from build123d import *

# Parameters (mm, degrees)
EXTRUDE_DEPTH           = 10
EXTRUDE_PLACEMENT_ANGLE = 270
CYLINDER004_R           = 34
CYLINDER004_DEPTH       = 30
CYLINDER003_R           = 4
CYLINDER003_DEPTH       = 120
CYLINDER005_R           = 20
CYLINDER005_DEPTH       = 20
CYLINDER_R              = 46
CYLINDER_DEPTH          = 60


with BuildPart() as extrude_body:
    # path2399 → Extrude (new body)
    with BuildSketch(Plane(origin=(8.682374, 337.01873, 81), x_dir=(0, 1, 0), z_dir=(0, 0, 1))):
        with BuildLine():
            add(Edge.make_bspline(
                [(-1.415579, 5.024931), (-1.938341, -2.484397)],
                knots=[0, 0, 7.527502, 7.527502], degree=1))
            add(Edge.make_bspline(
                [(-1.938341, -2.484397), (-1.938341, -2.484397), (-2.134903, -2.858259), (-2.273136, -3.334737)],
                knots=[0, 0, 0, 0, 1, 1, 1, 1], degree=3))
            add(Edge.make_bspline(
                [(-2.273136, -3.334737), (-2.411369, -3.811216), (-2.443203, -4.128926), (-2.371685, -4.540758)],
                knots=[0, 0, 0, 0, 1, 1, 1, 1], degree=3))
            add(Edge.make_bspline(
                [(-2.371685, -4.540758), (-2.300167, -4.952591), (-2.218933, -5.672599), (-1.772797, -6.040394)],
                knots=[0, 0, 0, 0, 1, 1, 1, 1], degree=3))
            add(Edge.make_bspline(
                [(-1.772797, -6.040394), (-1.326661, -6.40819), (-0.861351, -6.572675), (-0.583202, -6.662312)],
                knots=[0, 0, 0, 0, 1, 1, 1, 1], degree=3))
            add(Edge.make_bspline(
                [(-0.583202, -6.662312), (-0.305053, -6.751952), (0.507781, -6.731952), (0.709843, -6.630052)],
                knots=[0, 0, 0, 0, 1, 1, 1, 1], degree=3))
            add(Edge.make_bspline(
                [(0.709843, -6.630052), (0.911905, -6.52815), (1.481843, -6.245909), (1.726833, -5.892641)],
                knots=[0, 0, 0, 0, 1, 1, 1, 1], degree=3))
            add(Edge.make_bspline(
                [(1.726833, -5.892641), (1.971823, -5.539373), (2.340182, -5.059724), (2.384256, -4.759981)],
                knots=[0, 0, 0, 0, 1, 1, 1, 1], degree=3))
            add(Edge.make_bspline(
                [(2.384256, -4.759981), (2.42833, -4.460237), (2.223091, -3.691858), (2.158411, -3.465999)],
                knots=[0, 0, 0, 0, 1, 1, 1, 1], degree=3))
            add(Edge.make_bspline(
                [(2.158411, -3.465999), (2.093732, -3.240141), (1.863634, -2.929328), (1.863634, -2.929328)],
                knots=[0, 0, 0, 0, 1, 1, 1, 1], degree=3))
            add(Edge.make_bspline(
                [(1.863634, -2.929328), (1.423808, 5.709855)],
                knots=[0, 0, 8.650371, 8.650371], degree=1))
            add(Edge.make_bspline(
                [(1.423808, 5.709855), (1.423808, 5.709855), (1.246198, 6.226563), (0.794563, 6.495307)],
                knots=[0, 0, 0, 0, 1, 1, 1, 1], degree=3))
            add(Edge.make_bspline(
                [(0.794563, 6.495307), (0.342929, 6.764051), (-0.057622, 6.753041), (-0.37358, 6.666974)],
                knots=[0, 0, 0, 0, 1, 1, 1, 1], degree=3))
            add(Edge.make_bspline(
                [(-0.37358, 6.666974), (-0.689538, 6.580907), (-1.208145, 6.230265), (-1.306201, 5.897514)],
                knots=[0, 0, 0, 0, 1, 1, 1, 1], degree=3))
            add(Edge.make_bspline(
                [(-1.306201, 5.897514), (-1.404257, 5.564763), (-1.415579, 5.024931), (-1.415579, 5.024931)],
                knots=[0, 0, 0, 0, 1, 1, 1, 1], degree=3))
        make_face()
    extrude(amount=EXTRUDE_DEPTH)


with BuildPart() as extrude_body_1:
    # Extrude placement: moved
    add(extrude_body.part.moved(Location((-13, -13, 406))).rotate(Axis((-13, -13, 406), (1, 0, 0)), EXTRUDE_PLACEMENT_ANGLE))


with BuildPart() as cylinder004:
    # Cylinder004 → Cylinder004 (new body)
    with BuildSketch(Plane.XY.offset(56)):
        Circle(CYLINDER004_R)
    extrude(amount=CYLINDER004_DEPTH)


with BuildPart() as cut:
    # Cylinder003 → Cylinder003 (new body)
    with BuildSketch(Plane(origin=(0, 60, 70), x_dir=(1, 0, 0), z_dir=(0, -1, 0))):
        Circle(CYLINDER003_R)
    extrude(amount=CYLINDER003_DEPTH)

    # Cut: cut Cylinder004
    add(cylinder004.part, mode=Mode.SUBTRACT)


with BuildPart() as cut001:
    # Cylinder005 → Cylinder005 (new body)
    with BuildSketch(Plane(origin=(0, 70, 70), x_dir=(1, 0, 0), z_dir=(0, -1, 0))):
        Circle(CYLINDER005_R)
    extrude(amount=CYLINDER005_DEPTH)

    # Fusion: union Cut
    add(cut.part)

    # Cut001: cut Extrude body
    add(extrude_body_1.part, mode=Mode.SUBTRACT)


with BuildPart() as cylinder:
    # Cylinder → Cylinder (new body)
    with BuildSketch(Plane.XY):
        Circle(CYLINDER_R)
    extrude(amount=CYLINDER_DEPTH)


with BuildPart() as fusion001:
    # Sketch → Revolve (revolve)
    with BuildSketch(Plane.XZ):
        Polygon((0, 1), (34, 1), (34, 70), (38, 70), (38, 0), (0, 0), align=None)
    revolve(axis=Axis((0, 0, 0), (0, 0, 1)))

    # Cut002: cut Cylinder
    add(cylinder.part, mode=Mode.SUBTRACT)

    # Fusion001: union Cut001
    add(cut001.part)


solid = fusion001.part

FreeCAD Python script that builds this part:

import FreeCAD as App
import Part
import Sketcher
from FreeCAD import Vector


def add_polygon(sketch, points):
    """Adds a closed chain of lines whose ends are joined by coincident constraints."""
    first, n = sketch.GeometryCount, len(points)
    for a, b in zip(points, points[1:] + points[:1]):
        sketch.addGeometry(Part.LineSegment(App.Vector(*a, 0), App.Vector(*b, 0)), False)
    for i in range(n):
        sketch.addConstraint(Sketcher.Constraint("Coincident", first + i, 2, first + (i + 1) % n, 1))

doc = App.newDocument("Part")
params = doc.addObject("Spreadsheet::Sheet", "Params")
for row, (alias, value) in enumerate([
    ("pad1_length", "10 mm"),
    ("sketch2_diameter", "68 mm"),
    ("pad2_length", "30 mm"),
    ("sketch3_diameter", "8 mm"),
    ("pad3_length", "120 mm"),
    ("sketch4_diameter", "40 mm"),
    ("pad4_length", "20 mm"),
    ("sketch5_diameter", "92 mm"),
    ("pad5_length", "60 mm"),
    ("sketch6_width", "34 mm"),
    ("sketch6_width2", "38 mm"),
    ("sketch6_height", "1 mm"),
    ("sketch6_height2", "70 mm"),
    ("revolution_angle", "360 deg"),
], start=1):
    params.set(f"A{row}", alias)
    params.set(f"B{row}", "=" + value)
    params.setAlias(f"B{row}", alias)

body = doc.addObject("PartDesign::Body", "Body")

# Sketch on XY plane
sketch1 = doc.addObject("Sketcher::SketchObject", "Sketch")
body.addObject(sketch1)
sketch1.AttachmentSupport = (doc.XY_Plane, [""])
sketch1.MapMode = "FlatFace"
sketch1.AttachmentOffset = App.Placement(Vector(0, 0, 81), App.Rotation())
sketch1.addGeometry([
    Part.BSplineCurve([Vector(3.657443, 335.603151, 0), Vector(11.166771, 335.080389, 0)], [2, 2], [0, 7.527502], False, 1, [1, 1], False),  # 0
    Part.BSplineCurve([Vector(11.166771, 335.080389, 0), Vector(11.166771, 335.080389, 0), Vector(11.540633, 334.883827, 0), Vector(12.017111, 334.745594, 0)], [4, 4], [0, 1], False, 3, [1, 1, 1, 1], False),  # 1
    Part.BSplineCurve([Vector(12.017111, 334.745594, 0), Vector(12.49359, 334.607361, 0), Vector(12.8113, 334.575527, 0), Vector(13.223132, 334.647045, 0)], [4, 4], [0, 1], False, 3, [1, 1, 1, 1], False),  # 2
    Part.BSplineCurve([Vector(13.223132, 334.647045, 0), Vector(13.634965, 334.718563, 0), Vector(14.354973, 334.799797, 0), Vector(14.722768, 335.245933, 0)], [4, 4], [0, 1], False, 3, [1, 1, 1, 1], False),  # 3
    Part.BSplineCurve([Vector(14.722768, 335.245933, 0), Vector(15.090564, 335.692069, 0), Vector(15.255049, 336.157379, 0), Vector(15.344686, 336.435528, 0)], [4, 4], [0, 1], False, 3, [1, 1, 1, 1], False),  # 4
    Part.BSplineCurve([Vector(15.344686, 336.435528, 0), Vector(15.434326, 336.713677, 0), Vector(15.414326, 337.526511, 0), Vector(15.312426, 337.728573, 0)], [4, 4], [0, 1], False, 3, [1, 1, 1, 1], False),  # 5
    Part.BSplineCurve([Vector(15.312426, 337.728573, 0), Vector(15.210524, 337.930635, 0), Vector(14.928283, 338.500573, 0), Vector(14.575015, 338.745563, 0)], [4, 4], [0, 1], False, 3, [1, 1, 1, 1], False),  # 6
    Part.BSplineCurve([Vector(14.575015, 338.745563, 0), Vector(14.221747, 338.990553, 0), Vector(13.742098, 339.358912, 0), Vector(13.442355, 339.402986, 0)], [4, 4], [0, 1], False, 3, [1, 1, 1, 1], False),  # 7
    Part.BSplineCurve([Vector(13.442355, 339.402986, 0), Vector(13.142611, 339.44706, 0), Vector(12.374232, 339.241821, 0), Vector(12.148373, 339.177141, 0)], [4, 4], [0, 1], False, 3, [1, 1, 1, 1], False),  # 8
    Part.BSplineCurve([Vector(12.148373, 339.177141, 0), Vector(11.922515, 339.112462, 0), Vector(11.611702, 338.882364, 0), Vector(11.611702, 338.882364, 0)], [4, 4], [0, 1], False, 3, [1, 1, 1, 1], False),  # 9
    Part.BSplineCurve([Vector(11.611702, 338.882364, 0), Vector(2.972519, 338.442538, 0)], [2, 2], [0, 8.650371], False, 1, [1, 1], False),  # 10
    Part.BSplineCurve([Vector(2.972519, 338.442538, 0), Vector(2.972519, 338.442538, 0), Vector(2.455811, 338.264928, 0), Vector(2.187067, 337.813293, 0)], [4, 4], [0, 1], False, 3, [1, 1, 1, 1], False),  # 11
    Part.BSplineCurve([Vector(2.187067, 337.813293, 0), Vector(1.918323, 337.361659, 0), Vector(1.929333, 336.961108, 0), Vector(2.0154, 336.64515, 0)], [4, 4], [0, 1], False, 3, [1, 1, 1, 1], False),  # 12
    Part.BSplineCurve([Vector(2.0154, 336.64515, 0), Vector(2.101467, 336.329192, 0), Vector(2.452109, 335.810585, 0), Vector(2.78486, 335.712529, 0)], [4, 4], [0, 1], False, 3, [1, 1, 1, 1], False),  # 13
    Part.BSplineCurve([Vector(2.78486, 335.712529, 0), Vector(3.117611, 335.614473, 0), Vector(3.657443, 335.603151, 0), Vector(3.657443, 335.603151, 0)], [4, 4], [0, 1], False, 3, [1, 1, 1, 1], False),  # 14
], False)
sketch1.addConstraint([
    Sketcher.Constraint("Block", 0),
    Sketcher.Constraint("Block", 1),
    Sketcher.Constraint("Block", 2),
    Sketcher.Constraint("Block", 3),
    Sketcher.Constraint("Block", 4),
    Sketcher.Constraint("Block", 5),
    Sketcher.Constraint("Block", 6),
    Sketcher.Constraint("Block", 7),
    Sketcher.Constraint("Block", 8),
    Sketcher.Constraint("Block", 9),
    Sketcher.Constraint("Block", 10),
    Sketcher.Constraint("Block", 11),
    Sketcher.Constraint("Block", 12),
    Sketcher.Constraint("Block", 13),
    Sketcher.Constraint("Block", 14),
])
pad1 = doc.addObject("PartDesign::Pad", "Pad")
body.addObject(pad1)
pad1.Profile = sketch1
pad1.setExpression("Length", "Params.pad1_length")
body2 = doc.addObject("PartDesign::Body", "Body001")
doc.recompute()

body.Placement = App.Placement(Vector(-13, -13, 406), App.Rotation(Vector(1, 0, 0), 270))
boolean = doc.addObject("PartDesign::Boolean", "Boolean")
body2.addObject(boolean)
boolean.Type = "Fuse"
boolean.addObjects([body])
body3 = doc.addObject("PartDesign::Body", "Body002")

# Sketch on XY plane
sketch2 = doc.addObject("Sketcher::SketchObject", "Sketch001")
body3.addObject(sketch2)
sketch2.AttachmentSupport = (doc.getObject("XY_Plane002"), [""])
sketch2.MapMode = "FlatFace"
sketch2.AttachmentOffset = App.Placement(Vector(0, 0, 56), App.Rotation())
sketch2.addGeometry(Part.Circle(Vector(0, 0, 0), Vector(0, 0, 1), 34), False)
sketch2.addConstraint([
    Sketcher.Constraint("Coincident", 0, 3, -1, 1),
    Sketcher.Constraint("Diameter", 0, 68.0),
])
sketch2.setExpression("Constraints[1]", "Params.sketch2_diameter")
pad2 = doc.addObject("PartDesign::Pad", "Pad001")
body3.addObject(pad2)
pad2.Profile = sketch2
pad2.setExpression("Length", "Params.pad2_length")
body4 = doc.addObject("PartDesign::Body", "Body003")
body4.AllowCompound = True

# Sketch on XZ plane
sketch3 = doc.addObject("Sketcher::SketchObject", "Sketch002")
body4.addObject(sketch3)
sketch3.AttachmentSupport = (doc.getObject("XZ_Plane003"), [""])
sketch3.MapMode = "FlatFace"
sketch3.AttachmentOffset = App.Placement(Vector(0, 0, -60), App.Rotation())
sketch3.addGeometry(Part.Circle(Vector(0, 70, 0), Vector(0, 0, 1), 4), False)
sketch3.addConstraint([
    Sketcher.Constraint("PointOnObject", 0, 3, -2),
    Sketcher.Constraint("Diameter", 0, 8.0),
    Sketcher.Constraint("DistanceY", -1, 1, 0, 3, 70.0),
])
sketch3.setExpression("Constraints[1]", "Params.sketch3_diameter")
pad3 = doc.addObject("PartDesign::Pad", "Pad002")
body4.addObject(pad3)
pad3.Profile = sketch3
pad3.setExpression("Length", "Params.pad3_length")
doc.recompute()

boolean2 = doc.addObject("PartDesign::Boolean", "Boolean001")
body4.addObject(boolean2)
boolean2.Type = "Cut"
boolean2.addObjects([body3])
body5 = doc.addObject("PartDesign::Body", "Body004")
body5.AllowCompound = True

# Sketch on XZ plane
sketch4 = doc.addObject("Sketcher::SketchObject", "Sketch003")
body5.addObject(sketch4)
sketch4.AttachmentSupport = (doc.getObject("XZ_Plane004"), [""])
sketch4.MapMode = "FlatFace"
sketch4.AttachmentOffset = App.Placement(Vector(0, 0, -70), App.Rotation())
sketch4.addGeometry(Part.Circle(Vector(0, 70, 0), Vector(0, 0, 1), 20), False)
sketch4.addConstraint([
    Sketcher.Constraint("PointOnObject", 0, 3, -2),
    Sketcher.Constraint("Diameter", 0, 40.0),
    Sketcher.Constraint("DistanceY", -1, 1, 0, 3, 70.0),
])
sketch4.setExpression("Constraints[1]", "Params.sketch4_diameter")
pad4 = doc.addObject("PartDesign::Pad", "Pad003")
body5.addObject(pad4)
pad4.Profile = sketch4
pad4.setExpression("Length", "Params.pad4_length")
doc.recompute()

boolean3 = doc.addObject("PartDesign::Boolean", "Boolean002")
body5.addObject(boolean3)
boolean3.Type = "Fuse"
boolean3.addObjects([body4])
doc.recompute()

boolean4 = doc.addObject("PartDesign::Boolean", "Boolean003")
body5.addObject(boolean4)
boolean4.Type = "Cut"
boolean4.addObjects([body2])
body6 = doc.addObject("PartDesign::Body", "Body005")

# Sketch on XY plane
sketch5 = doc.addObject("Sketcher::SketchObject", "Sketch004")
body6.addObject(sketch5)
sketch5.AttachmentSupport = (doc.getObject("XY_Plane005"), [""])
sketch5.MapMode = "FlatFace"
sketch5.addGeometry(Part.Circle(Vector(0, 0, 0), Vector(0, 0, 1), 46), False)
sketch5.addConstraint([
    Sketcher.Constraint("Coincident", 0, 3, -1, 1),
    Sketcher.Constraint("Diameter", 0, 92.0),
])
sketch5.setExpression("Constraints[1]", "Params.sketch5_diameter")
pad5 = doc.addObject("PartDesign::Pad", "Pad004")
body6.addObject(pad5)
pad5.Profile = sketch5
pad5.setExpression("Length", "Params.pad5_length")
body7 = doc.addObject("PartDesign::Body", "Body006")

# Sketch on XZ plane
sketch6 = doc.addObject("Sketcher::SketchObject", "Sketch005")
body7.addObject(sketch6)
sketch6.AttachmentSupport = (doc.getObject("XZ_Plane006"), [""])
sketch6.MapMode = "FlatFace"
add_polygon(sketch6, [(34, 1), (0, 1), (0, 0), (38, 0), (38, 70), (34, 70)])  # lines 0-5
sketch6.addConstraint([
    Sketcher.Constraint("Horizontal", 0),
    Sketcher.Constraint("Vertical", 1),
    Sketcher.Constraint("Horizontal", 2),
    Sketcher.Constraint("Vertical", 3),
    Sketcher.Constraint("Horizontal", 4),
    Sketcher.Constraint("Vertical", 5),
    Sketcher.Constraint("Coincident", 1, 2, -1, 1),
    Sketcher.Constraint("DistanceX", 0, 2, 0, 1, 34.0),
    Sketcher.Constraint("DistanceX", 2, 1, 2, 2, 38.0),
    Sketcher.Constraint("DistanceY", 1, 2, 1, 1, 1.0),
    Sketcher.Constraint("DistanceY", 3, 1, 3, 2, 70.0),
])
sketch6.setExpression("Constraints[13]", "Params.sketch6_width")
sketch6.setExpression("Constraints[14]", "Params.sketch6_width2")
sketch6.setExpression("Constraints[15]", "Params.sketch6_height")
sketch6.setExpression("Constraints[16]", "Params.sketch6_height2")
revolution = doc.addObject("PartDesign::Revolution", "Revolution")
body7.addObject(revolution)
revolution.Profile = sketch6
revolution.ReferenceAxis = (sketch6, ["V_Axis"])
revolution.setExpression("Angle", "Params.revolution_angle")
doc.recompute()

boolean5 = doc.addObject("PartDesign::Boolean", "Boolean004")
body7.addObject(boolean5)
boolean5.Type = "Cut"
boolean5.addObjects([body6])
doc.recompute()

boolean6 = doc.addObject("PartDesign::Boolean", "Boolean005")
body7.addObject(boolean6)
boolean6.Type = "Fuse"
boolean6.addObjects([body5])

doc.recompute()
